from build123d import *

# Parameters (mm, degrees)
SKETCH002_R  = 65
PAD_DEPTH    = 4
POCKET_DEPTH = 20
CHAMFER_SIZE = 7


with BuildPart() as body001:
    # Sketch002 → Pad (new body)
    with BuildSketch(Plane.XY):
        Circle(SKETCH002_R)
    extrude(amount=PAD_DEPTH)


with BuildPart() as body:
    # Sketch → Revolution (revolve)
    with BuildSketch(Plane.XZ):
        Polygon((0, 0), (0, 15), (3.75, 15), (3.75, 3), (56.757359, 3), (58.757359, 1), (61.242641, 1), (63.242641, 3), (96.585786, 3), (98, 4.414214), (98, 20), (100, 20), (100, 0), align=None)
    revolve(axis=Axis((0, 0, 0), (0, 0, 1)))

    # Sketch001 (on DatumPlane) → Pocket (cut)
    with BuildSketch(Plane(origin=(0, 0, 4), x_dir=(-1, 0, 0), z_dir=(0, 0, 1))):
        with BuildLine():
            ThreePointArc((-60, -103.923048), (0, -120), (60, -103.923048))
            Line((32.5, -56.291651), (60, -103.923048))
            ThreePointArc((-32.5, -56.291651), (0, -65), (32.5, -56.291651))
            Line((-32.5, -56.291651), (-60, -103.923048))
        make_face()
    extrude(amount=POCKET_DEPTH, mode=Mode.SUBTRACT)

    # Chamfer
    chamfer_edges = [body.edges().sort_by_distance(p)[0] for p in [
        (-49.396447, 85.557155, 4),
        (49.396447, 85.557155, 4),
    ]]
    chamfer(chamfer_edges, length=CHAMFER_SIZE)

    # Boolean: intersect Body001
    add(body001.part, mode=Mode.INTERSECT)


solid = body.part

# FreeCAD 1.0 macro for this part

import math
import FreeCAD as App
import Part
import Sketcher
Q = App.Units.Quantity


def edges_at(feature, points):
    """Names of the edges that pass closest to the given points."""
    edges = feature.Shape.Edges
    near = lambda p: min(range(len(edges)), key=lambda i: edges[i].distToShape(Part.Vertex(*p))[0])
    return sorted({f"Edge{near(p) + 1}" for p in points})


def add_polygon(sketch, points):
    """Adds a closed chain of lines whose ends are joined by coincident constraints."""
    first, n = sketch.GeometryCount, len(points)
    for a, b in zip(points, points[1:] + points[:1]):
        sketch.addGeometry(Part.LineSegment(App.Vector(*a, 0), App.Vector(*b, 0)), False)
    for i in range(n):
        sketch.addConstraint(Sketcher.Constraint("Coincident", first + i, 2, first + (i + 1) % n, 1))

doc = App.newDocument("Part")
body = doc.addObject("PartDesign::Body", "Body")

# Sketch on XY plane
sketch1 = body.newObject("Sketcher::SketchObject", "Sketch")
sketch1.AttachmentSupport = (doc.getObject("XY_Plane"), [""])
sketch1.MapMode = "FlatFace"
sketch1.addGeometry(Part.Circle(App.Vector(0, 0, 0), App.Vector(0, 0, 1), 65), False)
sketch1.addConstraint(Sketcher.Constraint("Coincident", 0, 3, -1, 1))
sketch1.addConstraint(Sketcher.Constraint("Diameter", 0, Q("130 mm")))
pad1 = body.newObject("PartDesign::Pad", "Pad")
pad1.Profile = sketch1
pad1.Length = 4
body2 = doc.addObject("PartDesign::Body", "Body001")

# Sketch on XZ plane
sketch2 = body2.newObject("Sketcher::SketchObject", "Sketch001")
sketch2.AttachmentSupport = (doc.getObject("XZ_Plane001"), [""])
sketch2.MapMode = "FlatFace"
add_polygon(sketch2, [(0, 15), (0, 0), (100, 0), (100, 20), (98, 20), (98, 4.414214), (96.585786, 3), (63.242641, 3), (61.242641, 1), (58.757359, 1), (56.757359, 3), (3.75, 3), (3.75, 15)])  # lines 0-12
sketch2.addConstraint(Sketcher.Constraint("Vertical", 0))
sketch2.addConstraint(Sketcher.Constraint("Horizontal", 1))
sketch2.addConstraint(Sketcher.Constraint("Vertical", 2))
sketch2.addConstraint(Sketcher.Constraint("Horizontal", 3))
sketch2.addConstraint(Sketcher.Constraint("Vertical", 4))
sketch2.addConstraint(Sketcher.Constraint("Horizontal", 6))
sketch2.addConstraint(Sketcher.Constraint("Horizontal", 8))
sketch2.addConstraint(Sketcher.Constraint("Horizontal", 10))
sketch2.addConstraint(Sketcher.Constraint("Vertical", 11))
sketch2.addConstraint(Sketcher.Constraint("Horizontal", 12))
sketch2.addConstraint(Sketcher.Constraint("Coincident", 0, 2, -1, 1))
sketch2.addConstraint(Sketcher.Constraint("Parallel", 5, 7))
sketch2.addConstraint(Sketcher.Constraint("Perpendicular", 7, 9))
sketch2.addConstraint(Sketcher.Constraint("Horizontal", 6, 2, 9, 2))
sketch2.addConstraint(Sketcher.Constraint("Equal", 7, 9))
sketch2.addConstraint(Sketcher.Constraint("DistanceX", 1, 1, 1, 2, Q("100 mm")))
sketch2.addConstraint(Sketcher.Constraint("DistanceX", 3, 2, 3, 1, Q("2 mm")))
sketch2.addConstraint(Sketcher.Constraint("DistanceY", 0, 2, 0, 1, Q("15 mm")))
sketch2.addConstraint(Sketcher.Constraint("DistanceY", 2, 1, 2, 2, Q("20 mm")))
sketch2.addConstraint(Sketcher.Constraint("DistanceY", 11, 1, 11, 2, Q("12 mm")))
sketch2.addConstraint(Sketcher.Constraint("Distance", 5, Q("2.000001 mm")))
sketch2.addConstraint(Sketcher.Constraint("DistanceY", -1, 1, 7, 2, Q("1 mm")))
sketch2.addConstraint(Sketcher.Constraint("DistanceX", 12, 2, 12, 1, Q("3.75 mm")))
sketch2.addConstraint(Sketcher.Constraint("DistanceX", 8, 2, 8, 1, Q("2.485282 mm")))
sketch2.addConstraint(Sketcher.Constraint("DistanceX", 10, 2, 10, 1, Q("53.007359 mm")))
revolution = body2.newObject("PartDesign::Revolution", "Revolution")
revolution.Profile = sketch2
revolution.ReferenceAxis = (sketch2, ["V_Axis"])
revolution.Angle = 360

# Sketch on XY plane
sketch3 = body2.newObject("Sketcher::SketchObject", "Sketch002")
sketch3.AttachmentSupport = (doc.getObject("XY_Plane001"), [""])
sketch3.MapMode = "FlatFace"
sketch3.AttachmentOffset = App.Placement(App.Vector(0, 0, 4), App.Rotation())
sketch3.addGeometry(Part.ArcOfCircle(Part.Circle(App.Vector(0, 0.000003, 0), App.Vector(0, 0, 1), 119.999997), math.radians(59.999999), math.radians(120.000001)), False)
sketch3.addGeometry(Part.LineSegment(App.Vector(-60, 103.923048, 0), App.Vector(-32.5, 56.291651, 0)), False)
sketch3.addGeometry(Part.ArcOfCircle(Part.Circle(App.Vector(0, 0.000002, 0), App.Vector(0, 0, 1), 64.999998), math.radians(59.999999), math.radians(120.000001)), False)
sketch3.addGeometry(Part.LineSegment(App.Vector(32.5, 56.291651, 0), App.Vector(60, 103.923048, 0)), False)
sketch3.addConstraint(Sketcher.Constraint("Coincident", 0, 2, 1, 1))
sketch3.addConstraint(Sketcher.Constraint("Coincident", 1, 2, 2, 2))
sketch3.addConstraint(Sketcher.Constraint("Coincident", 2, 1, 3, 1))
sketch3.addConstraint(Sketcher.Constraint("Coincident", 3, 2, 0, 1))
sketch3.addConstraint(Sketcher.Constraint("Coincident", 0, 3, -1, 1))
sketch3.addConstraint(Sketcher.Constraint("Coincident", 2, 3, -1, 1))
sketch3.addConstraint(Sketcher.Constraint("Horizontal", 1, 2, 2, 1))
sketch3.addConstraint(Sketcher.Constraint("Horizontal", 0, 2, 3, 2))
sketch3.addConstraint(Sketcher.Constraint("Radius", 2, Q("64.999998 mm")))
sketch3.addConstraint(Sketcher.Constraint("Angle", 1, Q("-60 deg")))
sketch3.addConstraint(Sketcher.Constraint("Distance", 1, Q("55 mm")))
sketch3.addConstraint(Sketcher.Constraint("DistanceX", 0, 2, -1, 1, Q("60 mm")))
pocket1 = body2.newObject("PartDesign::Pocket", "Pocket")
pocket1.Profile = sketch3
pocket1.Length = 20
pocket1.Reversed = True
doc.recompute()

chamfer = body2.newObject("PartDesign::Chamfer", "Chamfer")
chamfer.Base = (pocket1, edges_at(pocket1, [(-49.396, 85.557, 4), (49.396, 85.557, 4)]))
chamfer.Size = 7
doc.recompute()

boolean = body2.newObject("PartDesign::Boolean", "Boolean")
boolean.Type = "Common"
boolean.addObjects([body])

doc.recompute()
